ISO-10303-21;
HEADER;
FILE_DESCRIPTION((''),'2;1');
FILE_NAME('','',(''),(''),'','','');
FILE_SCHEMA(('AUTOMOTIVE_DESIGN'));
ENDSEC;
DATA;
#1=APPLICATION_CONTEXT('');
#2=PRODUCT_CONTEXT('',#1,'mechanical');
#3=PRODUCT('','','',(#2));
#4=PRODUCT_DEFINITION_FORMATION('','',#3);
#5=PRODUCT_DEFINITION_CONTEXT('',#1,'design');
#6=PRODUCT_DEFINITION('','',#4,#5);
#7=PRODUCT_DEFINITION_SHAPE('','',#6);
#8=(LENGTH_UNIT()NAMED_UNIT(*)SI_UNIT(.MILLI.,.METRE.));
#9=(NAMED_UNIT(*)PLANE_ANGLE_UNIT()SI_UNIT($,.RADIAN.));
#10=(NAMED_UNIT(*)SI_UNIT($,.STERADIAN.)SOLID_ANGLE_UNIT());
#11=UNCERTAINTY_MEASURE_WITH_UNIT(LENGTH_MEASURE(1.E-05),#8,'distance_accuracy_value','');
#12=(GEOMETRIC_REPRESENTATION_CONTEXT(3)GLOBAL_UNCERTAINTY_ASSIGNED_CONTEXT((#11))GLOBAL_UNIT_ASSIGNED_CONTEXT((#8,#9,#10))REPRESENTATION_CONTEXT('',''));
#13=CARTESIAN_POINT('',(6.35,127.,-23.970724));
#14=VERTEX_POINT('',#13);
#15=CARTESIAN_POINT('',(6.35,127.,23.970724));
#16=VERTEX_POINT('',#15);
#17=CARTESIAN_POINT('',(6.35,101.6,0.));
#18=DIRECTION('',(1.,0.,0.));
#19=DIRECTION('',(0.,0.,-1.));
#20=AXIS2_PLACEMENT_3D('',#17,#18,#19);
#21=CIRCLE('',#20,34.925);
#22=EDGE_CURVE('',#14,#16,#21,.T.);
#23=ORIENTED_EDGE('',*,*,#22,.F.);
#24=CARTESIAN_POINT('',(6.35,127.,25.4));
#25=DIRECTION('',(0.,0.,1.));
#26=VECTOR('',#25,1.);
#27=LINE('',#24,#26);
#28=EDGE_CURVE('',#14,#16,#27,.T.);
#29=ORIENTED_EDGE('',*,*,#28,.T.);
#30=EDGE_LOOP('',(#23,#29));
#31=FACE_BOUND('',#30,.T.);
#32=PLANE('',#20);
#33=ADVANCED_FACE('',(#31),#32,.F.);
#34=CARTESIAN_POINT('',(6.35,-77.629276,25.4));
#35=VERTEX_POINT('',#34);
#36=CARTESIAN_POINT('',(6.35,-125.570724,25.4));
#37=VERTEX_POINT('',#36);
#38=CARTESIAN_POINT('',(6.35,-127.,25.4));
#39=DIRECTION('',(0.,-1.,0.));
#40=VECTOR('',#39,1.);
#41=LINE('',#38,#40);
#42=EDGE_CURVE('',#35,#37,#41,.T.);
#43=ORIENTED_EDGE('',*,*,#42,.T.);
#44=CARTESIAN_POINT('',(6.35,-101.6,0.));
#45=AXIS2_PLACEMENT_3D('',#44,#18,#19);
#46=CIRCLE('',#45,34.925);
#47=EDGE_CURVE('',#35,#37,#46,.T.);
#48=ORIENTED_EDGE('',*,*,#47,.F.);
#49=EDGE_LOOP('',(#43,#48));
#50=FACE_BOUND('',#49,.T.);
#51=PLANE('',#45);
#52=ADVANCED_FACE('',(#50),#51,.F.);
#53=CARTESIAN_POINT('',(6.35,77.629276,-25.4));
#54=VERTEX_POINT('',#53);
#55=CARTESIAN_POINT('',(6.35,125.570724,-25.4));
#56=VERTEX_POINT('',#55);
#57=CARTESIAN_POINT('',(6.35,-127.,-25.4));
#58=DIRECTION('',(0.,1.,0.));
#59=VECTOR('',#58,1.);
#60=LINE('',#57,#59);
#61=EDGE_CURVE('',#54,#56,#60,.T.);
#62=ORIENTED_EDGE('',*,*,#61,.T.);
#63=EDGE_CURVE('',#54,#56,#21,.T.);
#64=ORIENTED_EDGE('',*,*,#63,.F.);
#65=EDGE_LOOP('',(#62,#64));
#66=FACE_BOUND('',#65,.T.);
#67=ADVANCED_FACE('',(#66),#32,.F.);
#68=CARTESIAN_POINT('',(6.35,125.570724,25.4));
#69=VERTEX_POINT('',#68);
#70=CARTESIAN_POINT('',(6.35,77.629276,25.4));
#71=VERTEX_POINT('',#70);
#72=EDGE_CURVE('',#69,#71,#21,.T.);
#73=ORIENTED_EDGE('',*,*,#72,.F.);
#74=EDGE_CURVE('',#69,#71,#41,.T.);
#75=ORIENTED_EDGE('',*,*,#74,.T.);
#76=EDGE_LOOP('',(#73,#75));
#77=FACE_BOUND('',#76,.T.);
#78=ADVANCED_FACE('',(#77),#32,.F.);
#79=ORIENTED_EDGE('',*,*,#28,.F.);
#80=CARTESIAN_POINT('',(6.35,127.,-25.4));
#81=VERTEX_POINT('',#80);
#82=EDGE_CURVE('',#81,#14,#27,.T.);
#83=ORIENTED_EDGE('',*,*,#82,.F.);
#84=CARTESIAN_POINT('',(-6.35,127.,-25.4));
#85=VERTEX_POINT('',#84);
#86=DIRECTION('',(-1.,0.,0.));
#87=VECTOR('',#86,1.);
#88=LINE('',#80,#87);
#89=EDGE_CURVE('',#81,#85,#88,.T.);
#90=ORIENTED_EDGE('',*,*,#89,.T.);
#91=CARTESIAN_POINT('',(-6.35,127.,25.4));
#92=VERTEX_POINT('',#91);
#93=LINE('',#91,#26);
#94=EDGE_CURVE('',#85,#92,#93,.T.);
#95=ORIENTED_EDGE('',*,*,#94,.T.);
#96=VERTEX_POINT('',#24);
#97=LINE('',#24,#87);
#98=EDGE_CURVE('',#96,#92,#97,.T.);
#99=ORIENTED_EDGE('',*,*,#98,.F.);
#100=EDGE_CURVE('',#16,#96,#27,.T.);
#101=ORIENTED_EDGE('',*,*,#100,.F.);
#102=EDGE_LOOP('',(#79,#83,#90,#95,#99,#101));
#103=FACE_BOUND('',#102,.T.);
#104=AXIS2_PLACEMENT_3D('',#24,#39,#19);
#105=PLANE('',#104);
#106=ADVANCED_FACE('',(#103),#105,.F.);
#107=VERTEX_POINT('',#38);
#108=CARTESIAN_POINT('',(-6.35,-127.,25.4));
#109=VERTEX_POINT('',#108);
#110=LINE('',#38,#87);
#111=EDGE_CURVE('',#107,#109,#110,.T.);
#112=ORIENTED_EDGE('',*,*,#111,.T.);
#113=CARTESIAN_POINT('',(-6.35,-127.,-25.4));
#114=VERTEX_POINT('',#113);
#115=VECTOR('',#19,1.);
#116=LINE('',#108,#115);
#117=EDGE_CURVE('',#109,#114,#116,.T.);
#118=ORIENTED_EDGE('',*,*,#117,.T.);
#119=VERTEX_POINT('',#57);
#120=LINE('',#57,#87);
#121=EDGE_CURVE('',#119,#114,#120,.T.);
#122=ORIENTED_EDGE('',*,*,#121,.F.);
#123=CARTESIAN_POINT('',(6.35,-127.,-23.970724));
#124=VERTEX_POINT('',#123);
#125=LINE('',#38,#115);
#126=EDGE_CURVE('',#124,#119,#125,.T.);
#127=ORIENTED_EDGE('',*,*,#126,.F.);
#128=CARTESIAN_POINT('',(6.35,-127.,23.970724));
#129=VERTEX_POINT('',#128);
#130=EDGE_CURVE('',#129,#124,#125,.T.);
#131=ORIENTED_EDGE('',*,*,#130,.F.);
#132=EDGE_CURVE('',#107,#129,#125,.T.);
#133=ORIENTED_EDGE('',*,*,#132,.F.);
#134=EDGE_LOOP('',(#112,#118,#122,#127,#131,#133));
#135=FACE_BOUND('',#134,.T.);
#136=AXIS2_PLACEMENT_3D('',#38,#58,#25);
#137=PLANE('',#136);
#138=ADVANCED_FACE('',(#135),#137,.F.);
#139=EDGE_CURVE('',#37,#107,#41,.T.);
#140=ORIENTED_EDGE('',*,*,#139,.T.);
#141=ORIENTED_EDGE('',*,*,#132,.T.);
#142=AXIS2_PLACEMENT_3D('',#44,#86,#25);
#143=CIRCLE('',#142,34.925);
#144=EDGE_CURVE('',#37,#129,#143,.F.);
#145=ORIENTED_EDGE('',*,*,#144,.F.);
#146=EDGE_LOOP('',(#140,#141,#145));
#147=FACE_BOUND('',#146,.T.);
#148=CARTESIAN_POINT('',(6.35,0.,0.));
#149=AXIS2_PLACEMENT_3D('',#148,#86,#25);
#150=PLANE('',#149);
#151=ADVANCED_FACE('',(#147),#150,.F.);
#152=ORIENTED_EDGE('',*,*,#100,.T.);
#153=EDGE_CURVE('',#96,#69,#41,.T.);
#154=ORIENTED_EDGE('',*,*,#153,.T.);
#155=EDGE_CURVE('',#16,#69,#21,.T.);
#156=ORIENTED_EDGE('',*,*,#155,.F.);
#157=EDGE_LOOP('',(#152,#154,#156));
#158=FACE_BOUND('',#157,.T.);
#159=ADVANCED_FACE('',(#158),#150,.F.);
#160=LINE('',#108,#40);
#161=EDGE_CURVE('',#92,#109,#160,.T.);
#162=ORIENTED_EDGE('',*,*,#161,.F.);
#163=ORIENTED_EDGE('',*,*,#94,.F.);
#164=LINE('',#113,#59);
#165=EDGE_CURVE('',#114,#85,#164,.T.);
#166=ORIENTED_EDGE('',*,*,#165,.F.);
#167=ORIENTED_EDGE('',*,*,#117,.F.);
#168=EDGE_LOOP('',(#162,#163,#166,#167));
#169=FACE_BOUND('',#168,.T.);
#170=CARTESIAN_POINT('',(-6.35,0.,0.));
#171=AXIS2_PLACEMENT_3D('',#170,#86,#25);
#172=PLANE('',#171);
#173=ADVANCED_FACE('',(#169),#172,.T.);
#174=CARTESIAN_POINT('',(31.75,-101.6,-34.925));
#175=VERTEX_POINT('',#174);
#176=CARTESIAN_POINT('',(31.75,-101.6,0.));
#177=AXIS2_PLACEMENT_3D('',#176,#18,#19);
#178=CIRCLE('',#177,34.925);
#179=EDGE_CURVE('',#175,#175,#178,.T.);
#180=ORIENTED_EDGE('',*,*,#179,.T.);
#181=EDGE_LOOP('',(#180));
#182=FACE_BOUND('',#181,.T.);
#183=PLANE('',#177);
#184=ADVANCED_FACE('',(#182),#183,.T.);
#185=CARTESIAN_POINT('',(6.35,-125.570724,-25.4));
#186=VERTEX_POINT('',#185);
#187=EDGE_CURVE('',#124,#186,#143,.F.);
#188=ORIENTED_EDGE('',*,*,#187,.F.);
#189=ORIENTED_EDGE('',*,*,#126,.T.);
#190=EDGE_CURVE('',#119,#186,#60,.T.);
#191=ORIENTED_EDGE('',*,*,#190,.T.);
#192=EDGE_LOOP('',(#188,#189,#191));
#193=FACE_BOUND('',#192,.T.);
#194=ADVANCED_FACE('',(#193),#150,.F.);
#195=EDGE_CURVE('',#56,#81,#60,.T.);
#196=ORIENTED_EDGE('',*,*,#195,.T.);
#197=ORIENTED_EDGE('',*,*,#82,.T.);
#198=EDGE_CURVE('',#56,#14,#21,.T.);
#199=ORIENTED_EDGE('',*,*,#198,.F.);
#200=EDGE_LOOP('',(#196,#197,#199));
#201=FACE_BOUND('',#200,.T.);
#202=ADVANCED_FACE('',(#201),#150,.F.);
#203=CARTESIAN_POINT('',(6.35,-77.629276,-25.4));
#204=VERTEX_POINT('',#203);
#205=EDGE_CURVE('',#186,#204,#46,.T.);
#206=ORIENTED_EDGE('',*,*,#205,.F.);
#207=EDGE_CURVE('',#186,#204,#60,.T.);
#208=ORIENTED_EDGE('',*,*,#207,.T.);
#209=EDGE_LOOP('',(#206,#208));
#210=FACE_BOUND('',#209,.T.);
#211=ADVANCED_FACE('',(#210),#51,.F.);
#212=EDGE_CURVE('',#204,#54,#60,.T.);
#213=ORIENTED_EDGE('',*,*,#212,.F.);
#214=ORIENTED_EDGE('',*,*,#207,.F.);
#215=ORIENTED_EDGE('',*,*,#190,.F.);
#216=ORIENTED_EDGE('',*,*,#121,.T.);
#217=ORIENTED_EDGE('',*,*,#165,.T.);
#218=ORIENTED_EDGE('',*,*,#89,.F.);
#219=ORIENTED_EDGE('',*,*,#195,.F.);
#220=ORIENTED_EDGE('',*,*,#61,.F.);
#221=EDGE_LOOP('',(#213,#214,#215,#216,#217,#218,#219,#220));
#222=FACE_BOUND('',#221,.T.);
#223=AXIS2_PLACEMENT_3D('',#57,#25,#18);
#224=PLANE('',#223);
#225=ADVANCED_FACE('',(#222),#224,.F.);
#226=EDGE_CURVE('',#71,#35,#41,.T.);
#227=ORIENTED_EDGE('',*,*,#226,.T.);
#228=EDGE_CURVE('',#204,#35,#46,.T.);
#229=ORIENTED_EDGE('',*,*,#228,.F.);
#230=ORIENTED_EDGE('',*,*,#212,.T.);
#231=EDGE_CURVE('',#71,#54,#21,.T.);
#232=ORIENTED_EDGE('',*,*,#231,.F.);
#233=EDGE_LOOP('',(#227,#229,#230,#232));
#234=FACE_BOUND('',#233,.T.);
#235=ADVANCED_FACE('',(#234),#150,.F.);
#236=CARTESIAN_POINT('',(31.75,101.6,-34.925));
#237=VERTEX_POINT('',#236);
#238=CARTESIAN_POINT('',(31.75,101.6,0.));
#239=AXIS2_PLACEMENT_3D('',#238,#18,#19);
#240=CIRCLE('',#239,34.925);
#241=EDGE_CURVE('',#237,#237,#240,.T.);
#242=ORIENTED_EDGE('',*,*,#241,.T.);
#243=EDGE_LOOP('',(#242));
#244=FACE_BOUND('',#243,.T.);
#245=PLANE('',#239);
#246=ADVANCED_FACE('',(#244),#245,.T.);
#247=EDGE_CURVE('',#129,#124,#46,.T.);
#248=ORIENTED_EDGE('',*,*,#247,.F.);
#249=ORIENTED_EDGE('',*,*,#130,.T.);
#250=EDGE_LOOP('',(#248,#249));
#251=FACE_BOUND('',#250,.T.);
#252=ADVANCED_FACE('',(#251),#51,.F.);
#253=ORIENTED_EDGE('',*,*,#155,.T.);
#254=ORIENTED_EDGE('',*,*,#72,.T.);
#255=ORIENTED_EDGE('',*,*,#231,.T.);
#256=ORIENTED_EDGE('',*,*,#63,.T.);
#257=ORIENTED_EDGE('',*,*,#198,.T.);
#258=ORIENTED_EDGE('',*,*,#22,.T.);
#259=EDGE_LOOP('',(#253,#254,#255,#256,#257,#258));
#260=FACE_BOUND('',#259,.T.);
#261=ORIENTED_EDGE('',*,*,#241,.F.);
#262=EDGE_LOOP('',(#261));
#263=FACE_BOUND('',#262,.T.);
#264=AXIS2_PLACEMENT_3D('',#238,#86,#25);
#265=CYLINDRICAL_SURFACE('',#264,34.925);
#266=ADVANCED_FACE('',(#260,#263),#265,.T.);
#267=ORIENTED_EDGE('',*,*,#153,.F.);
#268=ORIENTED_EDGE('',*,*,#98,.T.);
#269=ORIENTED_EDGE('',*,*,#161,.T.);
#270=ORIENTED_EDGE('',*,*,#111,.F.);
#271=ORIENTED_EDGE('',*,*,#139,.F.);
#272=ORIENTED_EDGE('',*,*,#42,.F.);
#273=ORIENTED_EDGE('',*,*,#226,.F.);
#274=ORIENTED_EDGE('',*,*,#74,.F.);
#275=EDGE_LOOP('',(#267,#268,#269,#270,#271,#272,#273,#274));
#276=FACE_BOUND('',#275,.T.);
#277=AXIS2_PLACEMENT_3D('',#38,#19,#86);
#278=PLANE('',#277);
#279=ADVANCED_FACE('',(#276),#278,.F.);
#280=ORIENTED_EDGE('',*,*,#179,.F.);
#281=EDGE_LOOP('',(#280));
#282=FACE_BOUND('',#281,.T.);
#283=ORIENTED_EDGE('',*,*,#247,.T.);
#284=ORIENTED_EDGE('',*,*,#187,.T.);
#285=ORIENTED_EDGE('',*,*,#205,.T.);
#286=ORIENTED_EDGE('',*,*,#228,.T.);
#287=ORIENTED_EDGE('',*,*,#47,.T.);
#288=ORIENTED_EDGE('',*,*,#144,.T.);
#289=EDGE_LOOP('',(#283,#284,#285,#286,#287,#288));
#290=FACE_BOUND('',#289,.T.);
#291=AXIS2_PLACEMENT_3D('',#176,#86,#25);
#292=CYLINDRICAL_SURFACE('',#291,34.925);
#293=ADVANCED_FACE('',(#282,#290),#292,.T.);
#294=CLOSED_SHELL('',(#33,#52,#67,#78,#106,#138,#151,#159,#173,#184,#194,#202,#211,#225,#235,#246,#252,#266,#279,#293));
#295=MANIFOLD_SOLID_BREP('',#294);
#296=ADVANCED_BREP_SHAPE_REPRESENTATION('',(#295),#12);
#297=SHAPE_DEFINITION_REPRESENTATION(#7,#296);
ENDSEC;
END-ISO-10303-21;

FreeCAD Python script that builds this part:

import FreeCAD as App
import Part
import Sketcher
from FreeCAD import Vector
Q = App.Units.Quantity

doc = App.newDocument("Part")
body = doc.addObject("PartDesign::Body", "Body")

# Sketch on YZ plane
sketch1 = doc.addObject("Sketcher::SketchObject", "Sketch")
body.addObject(sketch1)
sketch1.AttachmentSupport = (doc.YZ_Plane, [""])
sketch1.MapMode = "FlatFace"
sketch1.addGeometry([
    Part.LineSegment(Vector(127, 25.4, 0), Vector(-127, 25.4, 0)),
    Part.LineSegment(Vector(-127, 25.4, 0), Vector(-127, -25.4, 0)),
    Part.LineSegment(Vector(-127, -25.4, 0), Vector(127, -25.4, 0)),
    Part.LineSegment(Vector(127, -25.4, 0), Vector(127, 25.4, 0)),
], False)
sketch1.addConstraint([
    Sketcher.Constraint("Coincident", 0, 2, 1, 1),
    Sketcher.Constraint("Coincident", 1, 2, 2, 1),
    Sketcher.Constraint("Coincident", 2, 2, 3, 1),
    Sketcher.Constraint("Coincident", 3, 2, 0, 1),
    Sketcher.Constraint("Horizontal", 0),
    Sketcher.Constraint("Vertical", 1),
    Sketcher.Constraint("Horizontal", 2),
    Sketcher.Constraint("Vertical", 3),
    Sketcher.Constraint("Symmetric", 0, 2, 2, 2, -1, 1),
    Sketcher.Constraint("DistanceX", 0, 2, 0, 1, Q("10 in")),
    Sketcher.Constraint("DistanceY", 1, 2, 1, 1, Q("2 in")),
])
pad1 = doc.addObject("PartDesign::Pad", "Pad")
body.addObject(pad1)
pad1.Profile = sketch1
pad1.Length = Q("0.5 in")
pad1.Midplane = True

# Sketch on YZ plane
sketch2 = doc.addObject("Sketcher::SketchObject", "Sketch001")
body.addObject(sketch2)
sketch2.AttachmentSupport = (doc.YZ_Plane, [""])
sketch2.MapMode = "FlatFace"
sketch2.AttachmentOffset = App.Placement(Vector(0, 0, 0.25 * 25.4), App.Rotation())
sketch2.addGeometry([
    Part.Circle(Vector(101.6, 0, 0), Vector(0, 0, 1), 34.925),
    Part.Circle(Vector(-101.6, 0, 0), Vector(0, 0, 1), 34.925),
], False)
sketch2.addConstraint([
    Sketcher.Constraint("Equal", 0, 1),
    Sketcher.Constraint("Symmetric", 0, 3, 1, 3, -1, 1),
    Sketcher.Constraint("PointOnObject", 0, 3, -1),
    Sketcher.Constraint("Diameter", 0, Q("2.75 in")),
    Sketcher.Constraint("DistanceX", -1, 1, 0, 3, Q("4 in")),
])
pad2 = doc.addObject("PartDesign::Pad", "Pad001")
body.addObject(pad2)
pad2.Profile = sketch2
pad2.Length = Q("1 in")

doc.recompute()
